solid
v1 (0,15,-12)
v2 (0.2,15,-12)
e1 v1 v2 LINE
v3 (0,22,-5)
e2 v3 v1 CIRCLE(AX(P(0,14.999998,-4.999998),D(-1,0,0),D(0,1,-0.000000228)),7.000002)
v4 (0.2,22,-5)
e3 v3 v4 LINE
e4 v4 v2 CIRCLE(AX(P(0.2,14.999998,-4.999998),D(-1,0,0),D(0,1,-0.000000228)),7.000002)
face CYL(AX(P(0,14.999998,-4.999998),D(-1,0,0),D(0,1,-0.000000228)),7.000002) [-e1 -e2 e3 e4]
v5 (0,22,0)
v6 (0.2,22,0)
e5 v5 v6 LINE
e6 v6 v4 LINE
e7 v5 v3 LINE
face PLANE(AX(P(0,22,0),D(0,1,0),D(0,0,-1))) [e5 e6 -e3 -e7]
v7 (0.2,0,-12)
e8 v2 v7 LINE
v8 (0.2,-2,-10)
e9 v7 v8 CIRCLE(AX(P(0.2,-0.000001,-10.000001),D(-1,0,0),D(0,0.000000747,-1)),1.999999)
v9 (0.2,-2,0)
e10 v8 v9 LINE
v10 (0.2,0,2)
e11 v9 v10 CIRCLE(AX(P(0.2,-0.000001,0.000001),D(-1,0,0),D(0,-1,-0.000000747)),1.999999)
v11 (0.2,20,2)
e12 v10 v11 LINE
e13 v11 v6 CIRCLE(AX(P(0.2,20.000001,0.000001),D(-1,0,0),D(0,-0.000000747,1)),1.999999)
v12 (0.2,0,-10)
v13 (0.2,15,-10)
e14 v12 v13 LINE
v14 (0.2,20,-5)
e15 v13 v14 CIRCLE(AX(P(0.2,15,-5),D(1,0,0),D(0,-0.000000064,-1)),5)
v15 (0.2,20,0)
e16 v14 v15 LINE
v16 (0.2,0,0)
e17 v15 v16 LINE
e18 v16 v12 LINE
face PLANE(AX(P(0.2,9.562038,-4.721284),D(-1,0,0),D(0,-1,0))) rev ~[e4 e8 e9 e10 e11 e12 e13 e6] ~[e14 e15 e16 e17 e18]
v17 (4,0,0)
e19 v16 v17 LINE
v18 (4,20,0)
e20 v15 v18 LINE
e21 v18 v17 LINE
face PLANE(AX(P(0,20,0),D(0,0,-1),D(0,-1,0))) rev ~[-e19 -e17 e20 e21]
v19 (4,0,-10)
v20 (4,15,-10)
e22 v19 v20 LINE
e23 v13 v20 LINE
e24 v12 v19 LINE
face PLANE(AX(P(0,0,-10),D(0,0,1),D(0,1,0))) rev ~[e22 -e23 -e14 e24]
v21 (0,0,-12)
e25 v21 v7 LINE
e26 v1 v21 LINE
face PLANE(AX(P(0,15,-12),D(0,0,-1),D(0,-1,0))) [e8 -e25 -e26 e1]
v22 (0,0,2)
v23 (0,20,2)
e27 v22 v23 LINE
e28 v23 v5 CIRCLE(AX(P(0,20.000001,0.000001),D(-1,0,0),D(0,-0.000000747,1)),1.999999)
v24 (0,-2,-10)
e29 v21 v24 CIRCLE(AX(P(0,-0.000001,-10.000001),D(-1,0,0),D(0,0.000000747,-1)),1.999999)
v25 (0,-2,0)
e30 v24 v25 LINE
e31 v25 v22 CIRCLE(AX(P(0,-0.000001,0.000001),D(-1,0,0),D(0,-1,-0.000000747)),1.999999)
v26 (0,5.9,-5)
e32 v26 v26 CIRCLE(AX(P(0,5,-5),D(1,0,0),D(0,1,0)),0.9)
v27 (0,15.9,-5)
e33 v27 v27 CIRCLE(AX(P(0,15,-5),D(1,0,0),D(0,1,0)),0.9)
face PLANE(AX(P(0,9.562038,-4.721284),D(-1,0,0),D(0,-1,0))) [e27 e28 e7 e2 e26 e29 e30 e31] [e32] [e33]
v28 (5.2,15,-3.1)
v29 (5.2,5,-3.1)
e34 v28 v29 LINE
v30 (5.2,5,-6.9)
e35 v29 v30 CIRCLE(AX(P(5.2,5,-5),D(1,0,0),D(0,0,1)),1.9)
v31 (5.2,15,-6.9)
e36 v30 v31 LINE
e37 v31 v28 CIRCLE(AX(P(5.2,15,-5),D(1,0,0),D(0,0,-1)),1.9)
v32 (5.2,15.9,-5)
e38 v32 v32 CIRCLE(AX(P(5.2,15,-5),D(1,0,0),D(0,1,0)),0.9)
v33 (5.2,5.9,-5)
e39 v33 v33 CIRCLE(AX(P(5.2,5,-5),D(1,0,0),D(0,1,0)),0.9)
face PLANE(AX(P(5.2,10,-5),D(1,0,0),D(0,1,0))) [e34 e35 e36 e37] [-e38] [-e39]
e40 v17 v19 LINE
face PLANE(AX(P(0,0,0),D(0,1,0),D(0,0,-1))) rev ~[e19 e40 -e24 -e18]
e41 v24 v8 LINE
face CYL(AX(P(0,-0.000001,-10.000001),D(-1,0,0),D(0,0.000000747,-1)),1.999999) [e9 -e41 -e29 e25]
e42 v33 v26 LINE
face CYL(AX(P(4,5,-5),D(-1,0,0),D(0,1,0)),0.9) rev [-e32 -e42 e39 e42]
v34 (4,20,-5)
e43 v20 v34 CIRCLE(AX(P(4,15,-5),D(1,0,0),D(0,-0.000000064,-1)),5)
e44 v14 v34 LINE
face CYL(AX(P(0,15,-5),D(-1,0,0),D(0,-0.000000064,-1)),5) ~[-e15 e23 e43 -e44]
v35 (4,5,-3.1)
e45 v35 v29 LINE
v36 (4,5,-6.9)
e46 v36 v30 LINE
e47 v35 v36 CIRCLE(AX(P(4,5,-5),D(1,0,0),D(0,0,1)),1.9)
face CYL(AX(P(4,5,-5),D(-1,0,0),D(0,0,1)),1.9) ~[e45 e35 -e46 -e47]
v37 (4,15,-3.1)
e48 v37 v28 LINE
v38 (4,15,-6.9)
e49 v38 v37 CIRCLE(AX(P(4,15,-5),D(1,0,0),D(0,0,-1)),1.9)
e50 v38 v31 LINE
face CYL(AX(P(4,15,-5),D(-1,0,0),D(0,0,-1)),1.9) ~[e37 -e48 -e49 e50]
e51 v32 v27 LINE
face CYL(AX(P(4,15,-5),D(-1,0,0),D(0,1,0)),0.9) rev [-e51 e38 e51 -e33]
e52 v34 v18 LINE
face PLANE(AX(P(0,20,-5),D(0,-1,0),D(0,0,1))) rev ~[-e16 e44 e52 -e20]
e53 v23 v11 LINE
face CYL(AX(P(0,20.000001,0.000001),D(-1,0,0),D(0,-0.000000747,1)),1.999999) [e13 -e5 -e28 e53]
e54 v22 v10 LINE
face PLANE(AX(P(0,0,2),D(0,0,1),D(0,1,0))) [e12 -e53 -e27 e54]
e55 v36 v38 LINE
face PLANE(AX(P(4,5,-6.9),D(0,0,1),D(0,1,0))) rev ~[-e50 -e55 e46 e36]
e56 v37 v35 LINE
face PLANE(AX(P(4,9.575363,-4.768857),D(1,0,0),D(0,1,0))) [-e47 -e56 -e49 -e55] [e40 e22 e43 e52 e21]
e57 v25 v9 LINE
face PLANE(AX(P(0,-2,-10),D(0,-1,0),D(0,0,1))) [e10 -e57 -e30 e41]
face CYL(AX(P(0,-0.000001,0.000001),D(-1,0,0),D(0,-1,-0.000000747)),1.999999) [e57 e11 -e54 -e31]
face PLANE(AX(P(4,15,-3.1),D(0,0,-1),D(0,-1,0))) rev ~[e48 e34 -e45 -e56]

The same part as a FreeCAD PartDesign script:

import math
import FreeCAD as App
import Part
import Sketcher

V = App.Vector

doc = App.newDocument("Part")
body = doc.addObject("PartDesign::Body", "Body")

sketch1 = body.newObject("Sketcher::SketchObject", "Sketch")
sketch1.AttachmentSupport = (doc.getObject("YZ_Plane"), [""])
sketch1.MapMode = "FlatFace"
sketch1.addGeometry([
    Part.LineSegment(V(20, 0, 0), V(0, 0, 0)),
    Part.LineSegment(V(0, 0, 0), V(0, -10, 0)),
    Part.LineSegment(V(0, -10, 0), V(15, -10, 0)),
    Part.ArcOfCircle(Part.Circle(V(15, -5, 0), V(0, 0, 1), 5), math.radians(-90), math.radians(0)),
    Part.LineSegment(V(20, -5, 0), V(20, 0, 0)),
    Part.Circle(V(5, -5, 0), V(0, 0, 1), 0.9),
    Part.Circle(V(15, -5, 0), V(0, 0, 1), 0.9),
], False)
sketch1.addConstraint([
    Sketcher.Constraint("Coincident", 0, 2, 1, 1),
    Sketcher.Constraint("Coincident", 1, 2, 2, 1),
    Sketcher.Constraint("Tangent", 2, 2, 3, 1),
    Sketcher.Constraint("Tangent", 3, 2, 4, 1),
    Sketcher.Constraint("Coincident", 4, 2, 0, 1),
    Sketcher.Constraint("Horizontal", 0),
    Sketcher.Constraint("Vertical", 1),
    Sketcher.Constraint("Horizontal", 2),
    Sketcher.Constraint("Vertical", 4),
    Sketcher.Constraint("Coincident", 0, 2, -1, 1),
    Sketcher.Constraint("Coincident", 6, 3, 3, 3),
    Sketcher.Constraint("Equal", 5, 6),
    Sketcher.Constraint("Horizontal", 3, 3, 5, 3),
    Sketcher.Constraint("Radius", 3, 5.0),
    Sketcher.Constraint("Diameter", 5, 1.8),
    Sketcher.Constraint("DistanceX", 0, 2, 0, 1, 20.0),
    Sketcher.Constraint("DistanceY", 1, 2, 1, 1, 10.0),
    Sketcher.Constraint("DistanceX", -1, 1, 5, 3, 5.0),
])
pad1 = body.newObject("PartDesign::Pad", "Pad")
pad1.Profile = sketch1
pad1.Length = 4

sketch2 = body.newObject("Sketcher::SketchObject", "Sketch001")
sketch2.AttachmentSupport = (doc.getObject("YZ_Plane"), [""])
sketch2.MapMode = "FlatFace"
sketch2.AttachmentOffset = App.Placement(V(0, 0, 4), App.Rotation())
sketch2.addGeometry([
    Part.LineSegment(V(15, -3.1, 0), V(5, -3.1, 0)),
    Part.ArcOfCircle(Part.Circle(V(5, -5, 0), V(0, 0, 1), 1.9), math.radians(90), math.radians(270)),
    Part.LineSegment(V(5, -6.9, 0), V(15, -6.9, 0)),
    Part.ArcOfCircle(Part.Circle(V(15, -5, 0), V(0, 0, 1), 1.9), math.radians(-90), math.radians(90)),
    Part.Circle(V(5, -5, 0), V(0, 0, 1), 0.9),
    Part.Circle(V(15, -5, 0), V(0, 0, 1), 0.9),
], False)
sketch2.addConstraint([
    Sketcher.Constraint("Tangent", 0, 2, 1, 1),
    Sketcher.Constraint("Tangent", 1, 2, 2, 1),
    Sketcher.Constraint("Tangent", 2, 2, 3, 1),
    Sketcher.Constraint("Tangent", 3, 2, 0, 1),
    Sketcher.Constraint("Horizontal", 0),
    Sketcher.Constraint("Horizontal", 2),
    Sketcher.Constraint("Coincident", 4, 3, 1, 3),
    Sketcher.Constraint("Coincident", 5, 3, 3, 3),
    Sketcher.Constraint("Equal", 4, 5),
    Sketcher.Constraint("Diameter", 4, 1.8),
    Sketcher.Constraint("Radius", 1, 1.9),
    Sketcher.Constraint("DistanceX", 0, 2, 0, 1, 10.0),
    Sketcher.Constraint("DistanceX", -1, 1, 1, 3, 5.0),
    Sketcher.Constraint("DistanceY", 1, 3, -1, 1, 5.0),
])
pad2 = body.newObject("PartDesign::Pad", "Pad001")
pad2.Profile = sketch2
pad2.Length = 1.2

sketch3 = body.newObject("Sketcher::SketchObject", "Sketch002")
sketch3.AttachmentSupport = (doc.getObject("YZ_Plane"), [""])
sketch3.MapMode = "FlatFace"
sketch3.addGeometry([
    Part.ArcOfCircle(Part.Circle(V(20, 0, 0), V(0, 0, 1), 2), math.radians(0), math.radians(90)),
    Part.LineSegment(V(22, 0, 0), V(22, -5, 0)),
    Part.ArcOfCircle(Part.Circle(V(15, -5, 0), V(0, 0, 1), 7), math.radians(-90), math.radians(0)),
    Part.LineSegment(V(15, -12, 0), V(0, -12, 0)),
    Part.ArcOfCircle(Part.Circle(V(0, -10, 0), V(0, 0, 1), 2), math.radians(180), math.radians(270)),
    Part.LineSegment(V(-2, -10, 0), V(-2, 0, 0)),
    Part.ArcOfCircle(Part.Circle(V(0, 0, 0), V(0, 0, 1), 2), math.radians(90), math.radians(180)),
    Part.LineSegment(V(0, 2, 0), V(20, 2, 0)),
    Part.ArcOfCircle(Part.Circle(V(15, -5, 0), V(0, 0, 1), 5), math.radians(-90), math.radians(0)),
    Part.LineSegment(V(20, -5, 0), V(20, 0, 0)),
    Part.LineSegment(V(20, 0, 0), V(0, 0, 0)),
    Part.LineSegment(V(0, 0, 0), V(0, -10, 0)),
    Part.LineSegment(V(0, -10, 0), V(15, -10, 0)),
], False)
sketch3.addConstraint([
    Sketcher.Constraint("Tangent", 0, 1, 1, 1),
    Sketcher.Constraint("Tangent", 1, 2, 2, 2),
    Sketcher.Constraint("Tangent", 2, 1, 3, 1),
    Sketcher.Constraint("Tangent", 3, 2, 4, 2),
    Sketcher.Constraint("Tangent", 4, 1, 5, 1),
    Sketcher.Constraint("Tangent", 5, 2, 6, 2),
    Sketcher.Constraint("Tangent", 6, 1, 7, 1),
    Sketcher.Constraint("Tangent", 7, 2, 0, 2),
    Sketcher.Constraint("Tangent", 8, 2, 9, 1),
    Sketcher.Constraint("Coincident", 9, 2, 10, 1),
    Sketcher.Constraint("Coincident", 10, 2, 11, 1),
    Sketcher.Constraint("Coincident", 11, 2, 12, 1),
    Sketcher.Constraint("Tangent", 12, 2, 8, 1),
    Sketcher.Constraint("Vertical", 1),
    Sketcher.Constraint("Horizontal", 3),
    Sketcher.Constraint("Vertical", 5),
    Sketcher.Constraint("Horizontal", 7),
    Sketcher.Constraint("Vertical", 9),
    Sketcher.Constraint("Horizontal", 10),
    Sketcher.Constraint("Vertical", 11),
    Sketcher.Constraint("Horizontal", 12),
    Sketcher.Constraint("Coincident", 6, 3, -1, 1),
    Sketcher.Constraint("Coincident", 10, 2, -1, 1),
    Sketcher.Constraint("Coincident", 8, 3, 2, 3),
    Sketcher.Constraint("Coincident", 9, 2, 0, 3),
    Sketcher.Constraint("Equal", 0, 4),
    Sketcher.Constraint("Radius", 0, 1.999999),
    Sketcher.Constraint("Radius", 2, 7.000002),
    Sketcher.Constraint("DistanceX", 3, 2, 3, 1, 15.0),
    Sketcher.Constraint("DistanceY", 1, 2, 1, 1, 5.0),
])
pad3 = body.newObject("PartDesign::Pad", "Pad002")
pad3.Profile = sketch3
pad3.Length = 0.2

doc.recompute()
